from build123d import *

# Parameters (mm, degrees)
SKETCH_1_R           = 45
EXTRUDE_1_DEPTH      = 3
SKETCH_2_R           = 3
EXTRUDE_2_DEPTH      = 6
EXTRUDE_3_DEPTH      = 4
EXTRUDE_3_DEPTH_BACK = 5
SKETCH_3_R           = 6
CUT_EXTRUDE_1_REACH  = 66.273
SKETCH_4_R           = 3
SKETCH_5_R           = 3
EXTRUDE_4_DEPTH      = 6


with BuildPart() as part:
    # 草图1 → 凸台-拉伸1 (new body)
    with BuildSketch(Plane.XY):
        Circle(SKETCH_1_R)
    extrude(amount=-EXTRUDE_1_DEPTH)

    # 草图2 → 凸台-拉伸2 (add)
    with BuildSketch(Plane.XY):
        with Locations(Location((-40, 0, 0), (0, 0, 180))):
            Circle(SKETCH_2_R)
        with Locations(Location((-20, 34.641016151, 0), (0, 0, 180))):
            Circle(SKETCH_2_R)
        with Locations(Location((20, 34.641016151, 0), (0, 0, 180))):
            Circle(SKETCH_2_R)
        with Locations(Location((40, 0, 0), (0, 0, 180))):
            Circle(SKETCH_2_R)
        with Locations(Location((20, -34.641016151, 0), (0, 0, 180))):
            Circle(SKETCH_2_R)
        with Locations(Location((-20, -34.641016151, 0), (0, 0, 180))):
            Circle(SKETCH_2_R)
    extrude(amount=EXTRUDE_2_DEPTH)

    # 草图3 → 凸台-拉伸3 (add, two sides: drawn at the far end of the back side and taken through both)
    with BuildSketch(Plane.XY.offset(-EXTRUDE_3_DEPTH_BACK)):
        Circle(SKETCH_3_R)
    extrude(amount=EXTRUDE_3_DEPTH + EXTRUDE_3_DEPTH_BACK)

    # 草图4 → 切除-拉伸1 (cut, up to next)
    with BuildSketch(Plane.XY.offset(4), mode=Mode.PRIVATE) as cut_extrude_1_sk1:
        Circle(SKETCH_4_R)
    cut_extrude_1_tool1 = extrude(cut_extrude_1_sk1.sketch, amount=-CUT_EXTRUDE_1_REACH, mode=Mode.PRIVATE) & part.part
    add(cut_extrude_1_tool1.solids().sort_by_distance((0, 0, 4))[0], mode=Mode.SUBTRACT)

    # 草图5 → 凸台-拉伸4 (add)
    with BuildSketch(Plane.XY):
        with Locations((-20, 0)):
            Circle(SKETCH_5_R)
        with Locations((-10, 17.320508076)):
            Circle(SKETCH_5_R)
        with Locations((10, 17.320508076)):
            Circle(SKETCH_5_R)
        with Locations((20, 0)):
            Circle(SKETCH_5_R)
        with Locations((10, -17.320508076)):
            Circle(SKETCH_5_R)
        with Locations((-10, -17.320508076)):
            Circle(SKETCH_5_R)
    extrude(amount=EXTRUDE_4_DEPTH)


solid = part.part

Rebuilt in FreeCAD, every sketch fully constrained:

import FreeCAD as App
import Part
import Sketcher
from FreeCAD import Vector

doc = App.newDocument("Part")
params = doc.addObject("Spreadsheet::Sheet", "Params")
for row, (alias, value) in enumerate([
    ("sketch1_diameter", "90 mm"),
    ("pad1_length", "3 mm"),
    ("sketch2_diameter", "6 mm"),
    ("pad2_length", "6 mm"),
    ("sketch3_diameter", "12 mm"),
    ("pad3_length", "4 mm"),
    ("pad3_length2", "5 mm"),
    ("sketch4_diameter", "6 mm"),
    ("sketch5_diameter", "6 mm"),
    ("pad4_length", "6 mm"),
], start=1):
    params.set(f"A{row}", alias)
    params.set(f"B{row}", "=" + value)
    params.setAlias(f"B{row}", alias)

body = doc.addObject("PartDesign::Body", "Body")

sketch1 = body.newObject("Sketcher::SketchObject", "Sketch")
sketch1.AttachmentSupport = (doc.getObject("XY_Plane"), [""])
sketch1.MapMode = "FlatFace"
sketch1.addGeometry(Part.Circle(Vector(0, 0, 0), Vector(0, 0, 1), 45), False)
sketch1.addConstraint(Sketcher.Constraint("Coincident", 0, 3, -1, 1))
sketch1.addConstraint(Sketcher.Constraint("Diameter", 0, 90.0))
sketch1.setExpression("Constraints[1]", "Params.sketch1_diameter")
pad1 = body.newObject("PartDesign::Pad", "Pad")
pad1.Profile = sketch1
pad1.setExpression("Length", "Params.pad1_length")
pad1.Reversed = True

sketch2 = body.newObject("Sketcher::SketchObject", "Sketch001")
sketch2.AttachmentSupport = (doc.getObject("XY_Plane"), [""])
sketch2.MapMode = "FlatFace"
sketch2.addGeometry(Part.Circle(Vector(-40, 0, 0), Vector(0, 0, 1), 3), False)
sketch2.addGeometry(Part.Circle(Vector(-20, 34.6, 0), Vector(0, 0, 1), 3), False)
sketch2.addGeometry(Part.Circle(Vector(20, 34.6, 0), Vector(0, 0, 1), 3), False)
sketch2.addGeometry(Part.Circle(Vector(40, 0, 0), Vector(0, 0, 1), 3), False)
sketch2.addGeometry(Part.Circle(Vector(20, -34.6, 0), Vector(0, 0, 1), 3), False)
sketch2.addGeometry(Part.Circle(Vector(-20, -34.6, 0), Vector(0, 0, 1), 3), False)
sketch2.addConstraint(Sketcher.Constraint("Equal", 0, 1))
sketch2.addConstraint(Sketcher.Constraint("Equal", 1, 2))
sketch2.addConstraint(Sketcher.Constraint("Equal", 2, 3))
sketch2.addConstraint(Sketcher.Constraint("Equal", 3, 4))
sketch2.addConstraint(Sketcher.Constraint("Equal", 4, 5))
sketch2.addConstraint(Sketcher.Constraint("Symmetric", 0, 3, 3, 3, -1, 1))
sketch2.addConstraint(Sketcher.Constraint("Symmetric", 1, 3, 4, 3, -1, 1))
sketch2.addConstraint(Sketcher.Constraint("Symmetric", 2, 3, 5, 3, -1, 1))
sketch2.addConstraint(Sketcher.Constraint("Symmetric", 1, 3, 2, 3, -2))
sketch2.addConstraint(Sketcher.Constraint("PointOnObject", 0, 3, -1))
sketch2.addConstraint(Sketcher.Constraint("Diameter", 0, 6.0))
sketch2.addConstraint(Sketcher.Constraint("DistanceX", 0, 3, -1, 1, 40.0))
sketch2.addConstraint(Sketcher.Constraint("DistanceX", 1, 3, -1, 1, 20.0))
sketch2.addConstraint(Sketcher.Constraint("DistanceY", -1, 1, 1, 3, 34.641016))
sketch2.setExpression("Constraints[10]", "Params.sketch2_diameter")
pad2 = body.newObject("PartDesign::Pad", "Pad001")
pad2.Profile = sketch2
pad2.setExpression("Length", "Params.pad2_length")

sketch3 = body.newObject("Sketcher::SketchObject", "Sketch002")
sketch3.AttachmentSupport = (doc.getObject("XY_Plane"), [""])
sketch3.MapMode = "FlatFace"
sketch3.addGeometry(Part.Circle(Vector(0, 0, 0), Vector(0, 0, 1), 6), False)
sketch3.addConstraint(Sketcher.Constraint("Coincident", 0, 3, -1, 1))
sketch3.addConstraint(Sketcher.Constraint("Diameter", 0, 12.0))
sketch3.setExpression("Constraints[1]", "Params.sketch3_diameter")
pad3 = body.newObject("PartDesign::Pad", "Pad002")
pad3.Profile = sketch3
pad3.Type = "TwoLengths"
pad3.setExpression("Length", "Params.pad3_length")
pad3.setExpression("Length2", "Params.pad3_length2")

sketch4 = body.newObject("Sketcher::SketchObject", "Sketch003")
sketch4.AttachmentSupport = (doc.getObject("XY_Plane"), [""])
sketch4.MapMode = "FlatFace"
sketch4.AttachmentOffset = App.Placement(Vector(0, 0, 4), App.Rotation())
sketch4.addGeometry(Part.Circle(Vector(0, 0, 0), Vector(0, 0, 1), 3), False)
sketch4.addConstraint(Sketcher.Constraint("Coincident", 0, 3, -1, 1))
sketch4.addConstraint(Sketcher.Constraint("Diameter", 0, 6.0))
sketch4.setExpression("Constraints[1]", "Params.sketch4_diameter")
pocket1 = body.newObject("PartDesign::Pocket", "Pocket")
pocket1.Profile = sketch4
pocket1.Type = "UpToFirst"

sketch5 = body.newObject("Sketcher::SketchObject", "Sketch004")
sketch5.AttachmentSupport = (doc.getObject("XY_Plane"), [""])
sketch5.MapMode = "FlatFace"
sketch5.addGeometry(Part.Circle(Vector(-20, 0, 0), Vector(0, 0, 1), 3), False)
sketch5.addGeometry(Part.Circle(Vector(-10, 17.3, 0), Vector(0, 0, 1), 3), False)
sketch5.addGeometry(Part.Circle(Vector(10, 17.3, 0), Vector(0, 0, 1), 3), False)
sketch5.addGeometry(Part.Circle(Vector(20, 0, 0), Vector(0, 0, 1), 3), False)
sketch5.addGeometry(Part.Circle(Vector(10, -17.3, 0), Vector(0, 0, 1), 3), False)
sketch5.addGeometry(Part.Circle(Vector(-10, -17.3, 0), Vector(0, 0, 1), 3), False)
sketch5.addConstraint(Sketcher.Constraint("Equal", 0, 1))
sketch5.addConstraint(Sketcher.Constraint("Equal", 1, 2))
sketch5.addConstraint(Sketcher.Constraint("Equal", 2, 3))
sketch5.addConstraint(Sketcher.Constraint("Equal", 3, 4))
sketch5.addConstraint(Sketcher.Constraint("Equal", 4, 5))
sketch5.addConstraint(Sketcher.Constraint("Symmetric", 0, 3, 3, 3, -1, 1))
sketch5.addConstraint(Sketcher.Constraint("Symmetric", 1, 3, 4, 3, -1, 1))
sketch5.addConstraint(Sketcher.Constraint("Symmetric", 2, 3, 5, 3, -1, 1))
sketch5.addConstraint(Sketcher.Constraint("Symmetric", 1, 3, 2, 3, -2))
sketch5.addConstraint(Sketcher.Constraint("PointOnObject", 0, 3, -1))
sketch5.addConstraint(Sketcher.Constraint("Diameter", 0, 6.0))
sketch5.addConstraint(Sketcher.Constraint("DistanceX", 0, 3, -1, 1, 20.0))
sketch5.addConstraint(Sketcher.Constraint("DistanceX", 1, 3, -1, 1, 10.0))
sketch5.addConstraint(Sketcher.Constraint("DistanceY", -1, 1, 1, 3, 17.320508))
sketch5.setExpression("Constraints[10]", "Params.sketch5_diameter")
pad4 = body.newObject("PartDesign::Pad", "Pad003")
pad4.Profile = sketch5
pad4.setExpression("Length", "Params.pad4_length")

doc.recompute()
